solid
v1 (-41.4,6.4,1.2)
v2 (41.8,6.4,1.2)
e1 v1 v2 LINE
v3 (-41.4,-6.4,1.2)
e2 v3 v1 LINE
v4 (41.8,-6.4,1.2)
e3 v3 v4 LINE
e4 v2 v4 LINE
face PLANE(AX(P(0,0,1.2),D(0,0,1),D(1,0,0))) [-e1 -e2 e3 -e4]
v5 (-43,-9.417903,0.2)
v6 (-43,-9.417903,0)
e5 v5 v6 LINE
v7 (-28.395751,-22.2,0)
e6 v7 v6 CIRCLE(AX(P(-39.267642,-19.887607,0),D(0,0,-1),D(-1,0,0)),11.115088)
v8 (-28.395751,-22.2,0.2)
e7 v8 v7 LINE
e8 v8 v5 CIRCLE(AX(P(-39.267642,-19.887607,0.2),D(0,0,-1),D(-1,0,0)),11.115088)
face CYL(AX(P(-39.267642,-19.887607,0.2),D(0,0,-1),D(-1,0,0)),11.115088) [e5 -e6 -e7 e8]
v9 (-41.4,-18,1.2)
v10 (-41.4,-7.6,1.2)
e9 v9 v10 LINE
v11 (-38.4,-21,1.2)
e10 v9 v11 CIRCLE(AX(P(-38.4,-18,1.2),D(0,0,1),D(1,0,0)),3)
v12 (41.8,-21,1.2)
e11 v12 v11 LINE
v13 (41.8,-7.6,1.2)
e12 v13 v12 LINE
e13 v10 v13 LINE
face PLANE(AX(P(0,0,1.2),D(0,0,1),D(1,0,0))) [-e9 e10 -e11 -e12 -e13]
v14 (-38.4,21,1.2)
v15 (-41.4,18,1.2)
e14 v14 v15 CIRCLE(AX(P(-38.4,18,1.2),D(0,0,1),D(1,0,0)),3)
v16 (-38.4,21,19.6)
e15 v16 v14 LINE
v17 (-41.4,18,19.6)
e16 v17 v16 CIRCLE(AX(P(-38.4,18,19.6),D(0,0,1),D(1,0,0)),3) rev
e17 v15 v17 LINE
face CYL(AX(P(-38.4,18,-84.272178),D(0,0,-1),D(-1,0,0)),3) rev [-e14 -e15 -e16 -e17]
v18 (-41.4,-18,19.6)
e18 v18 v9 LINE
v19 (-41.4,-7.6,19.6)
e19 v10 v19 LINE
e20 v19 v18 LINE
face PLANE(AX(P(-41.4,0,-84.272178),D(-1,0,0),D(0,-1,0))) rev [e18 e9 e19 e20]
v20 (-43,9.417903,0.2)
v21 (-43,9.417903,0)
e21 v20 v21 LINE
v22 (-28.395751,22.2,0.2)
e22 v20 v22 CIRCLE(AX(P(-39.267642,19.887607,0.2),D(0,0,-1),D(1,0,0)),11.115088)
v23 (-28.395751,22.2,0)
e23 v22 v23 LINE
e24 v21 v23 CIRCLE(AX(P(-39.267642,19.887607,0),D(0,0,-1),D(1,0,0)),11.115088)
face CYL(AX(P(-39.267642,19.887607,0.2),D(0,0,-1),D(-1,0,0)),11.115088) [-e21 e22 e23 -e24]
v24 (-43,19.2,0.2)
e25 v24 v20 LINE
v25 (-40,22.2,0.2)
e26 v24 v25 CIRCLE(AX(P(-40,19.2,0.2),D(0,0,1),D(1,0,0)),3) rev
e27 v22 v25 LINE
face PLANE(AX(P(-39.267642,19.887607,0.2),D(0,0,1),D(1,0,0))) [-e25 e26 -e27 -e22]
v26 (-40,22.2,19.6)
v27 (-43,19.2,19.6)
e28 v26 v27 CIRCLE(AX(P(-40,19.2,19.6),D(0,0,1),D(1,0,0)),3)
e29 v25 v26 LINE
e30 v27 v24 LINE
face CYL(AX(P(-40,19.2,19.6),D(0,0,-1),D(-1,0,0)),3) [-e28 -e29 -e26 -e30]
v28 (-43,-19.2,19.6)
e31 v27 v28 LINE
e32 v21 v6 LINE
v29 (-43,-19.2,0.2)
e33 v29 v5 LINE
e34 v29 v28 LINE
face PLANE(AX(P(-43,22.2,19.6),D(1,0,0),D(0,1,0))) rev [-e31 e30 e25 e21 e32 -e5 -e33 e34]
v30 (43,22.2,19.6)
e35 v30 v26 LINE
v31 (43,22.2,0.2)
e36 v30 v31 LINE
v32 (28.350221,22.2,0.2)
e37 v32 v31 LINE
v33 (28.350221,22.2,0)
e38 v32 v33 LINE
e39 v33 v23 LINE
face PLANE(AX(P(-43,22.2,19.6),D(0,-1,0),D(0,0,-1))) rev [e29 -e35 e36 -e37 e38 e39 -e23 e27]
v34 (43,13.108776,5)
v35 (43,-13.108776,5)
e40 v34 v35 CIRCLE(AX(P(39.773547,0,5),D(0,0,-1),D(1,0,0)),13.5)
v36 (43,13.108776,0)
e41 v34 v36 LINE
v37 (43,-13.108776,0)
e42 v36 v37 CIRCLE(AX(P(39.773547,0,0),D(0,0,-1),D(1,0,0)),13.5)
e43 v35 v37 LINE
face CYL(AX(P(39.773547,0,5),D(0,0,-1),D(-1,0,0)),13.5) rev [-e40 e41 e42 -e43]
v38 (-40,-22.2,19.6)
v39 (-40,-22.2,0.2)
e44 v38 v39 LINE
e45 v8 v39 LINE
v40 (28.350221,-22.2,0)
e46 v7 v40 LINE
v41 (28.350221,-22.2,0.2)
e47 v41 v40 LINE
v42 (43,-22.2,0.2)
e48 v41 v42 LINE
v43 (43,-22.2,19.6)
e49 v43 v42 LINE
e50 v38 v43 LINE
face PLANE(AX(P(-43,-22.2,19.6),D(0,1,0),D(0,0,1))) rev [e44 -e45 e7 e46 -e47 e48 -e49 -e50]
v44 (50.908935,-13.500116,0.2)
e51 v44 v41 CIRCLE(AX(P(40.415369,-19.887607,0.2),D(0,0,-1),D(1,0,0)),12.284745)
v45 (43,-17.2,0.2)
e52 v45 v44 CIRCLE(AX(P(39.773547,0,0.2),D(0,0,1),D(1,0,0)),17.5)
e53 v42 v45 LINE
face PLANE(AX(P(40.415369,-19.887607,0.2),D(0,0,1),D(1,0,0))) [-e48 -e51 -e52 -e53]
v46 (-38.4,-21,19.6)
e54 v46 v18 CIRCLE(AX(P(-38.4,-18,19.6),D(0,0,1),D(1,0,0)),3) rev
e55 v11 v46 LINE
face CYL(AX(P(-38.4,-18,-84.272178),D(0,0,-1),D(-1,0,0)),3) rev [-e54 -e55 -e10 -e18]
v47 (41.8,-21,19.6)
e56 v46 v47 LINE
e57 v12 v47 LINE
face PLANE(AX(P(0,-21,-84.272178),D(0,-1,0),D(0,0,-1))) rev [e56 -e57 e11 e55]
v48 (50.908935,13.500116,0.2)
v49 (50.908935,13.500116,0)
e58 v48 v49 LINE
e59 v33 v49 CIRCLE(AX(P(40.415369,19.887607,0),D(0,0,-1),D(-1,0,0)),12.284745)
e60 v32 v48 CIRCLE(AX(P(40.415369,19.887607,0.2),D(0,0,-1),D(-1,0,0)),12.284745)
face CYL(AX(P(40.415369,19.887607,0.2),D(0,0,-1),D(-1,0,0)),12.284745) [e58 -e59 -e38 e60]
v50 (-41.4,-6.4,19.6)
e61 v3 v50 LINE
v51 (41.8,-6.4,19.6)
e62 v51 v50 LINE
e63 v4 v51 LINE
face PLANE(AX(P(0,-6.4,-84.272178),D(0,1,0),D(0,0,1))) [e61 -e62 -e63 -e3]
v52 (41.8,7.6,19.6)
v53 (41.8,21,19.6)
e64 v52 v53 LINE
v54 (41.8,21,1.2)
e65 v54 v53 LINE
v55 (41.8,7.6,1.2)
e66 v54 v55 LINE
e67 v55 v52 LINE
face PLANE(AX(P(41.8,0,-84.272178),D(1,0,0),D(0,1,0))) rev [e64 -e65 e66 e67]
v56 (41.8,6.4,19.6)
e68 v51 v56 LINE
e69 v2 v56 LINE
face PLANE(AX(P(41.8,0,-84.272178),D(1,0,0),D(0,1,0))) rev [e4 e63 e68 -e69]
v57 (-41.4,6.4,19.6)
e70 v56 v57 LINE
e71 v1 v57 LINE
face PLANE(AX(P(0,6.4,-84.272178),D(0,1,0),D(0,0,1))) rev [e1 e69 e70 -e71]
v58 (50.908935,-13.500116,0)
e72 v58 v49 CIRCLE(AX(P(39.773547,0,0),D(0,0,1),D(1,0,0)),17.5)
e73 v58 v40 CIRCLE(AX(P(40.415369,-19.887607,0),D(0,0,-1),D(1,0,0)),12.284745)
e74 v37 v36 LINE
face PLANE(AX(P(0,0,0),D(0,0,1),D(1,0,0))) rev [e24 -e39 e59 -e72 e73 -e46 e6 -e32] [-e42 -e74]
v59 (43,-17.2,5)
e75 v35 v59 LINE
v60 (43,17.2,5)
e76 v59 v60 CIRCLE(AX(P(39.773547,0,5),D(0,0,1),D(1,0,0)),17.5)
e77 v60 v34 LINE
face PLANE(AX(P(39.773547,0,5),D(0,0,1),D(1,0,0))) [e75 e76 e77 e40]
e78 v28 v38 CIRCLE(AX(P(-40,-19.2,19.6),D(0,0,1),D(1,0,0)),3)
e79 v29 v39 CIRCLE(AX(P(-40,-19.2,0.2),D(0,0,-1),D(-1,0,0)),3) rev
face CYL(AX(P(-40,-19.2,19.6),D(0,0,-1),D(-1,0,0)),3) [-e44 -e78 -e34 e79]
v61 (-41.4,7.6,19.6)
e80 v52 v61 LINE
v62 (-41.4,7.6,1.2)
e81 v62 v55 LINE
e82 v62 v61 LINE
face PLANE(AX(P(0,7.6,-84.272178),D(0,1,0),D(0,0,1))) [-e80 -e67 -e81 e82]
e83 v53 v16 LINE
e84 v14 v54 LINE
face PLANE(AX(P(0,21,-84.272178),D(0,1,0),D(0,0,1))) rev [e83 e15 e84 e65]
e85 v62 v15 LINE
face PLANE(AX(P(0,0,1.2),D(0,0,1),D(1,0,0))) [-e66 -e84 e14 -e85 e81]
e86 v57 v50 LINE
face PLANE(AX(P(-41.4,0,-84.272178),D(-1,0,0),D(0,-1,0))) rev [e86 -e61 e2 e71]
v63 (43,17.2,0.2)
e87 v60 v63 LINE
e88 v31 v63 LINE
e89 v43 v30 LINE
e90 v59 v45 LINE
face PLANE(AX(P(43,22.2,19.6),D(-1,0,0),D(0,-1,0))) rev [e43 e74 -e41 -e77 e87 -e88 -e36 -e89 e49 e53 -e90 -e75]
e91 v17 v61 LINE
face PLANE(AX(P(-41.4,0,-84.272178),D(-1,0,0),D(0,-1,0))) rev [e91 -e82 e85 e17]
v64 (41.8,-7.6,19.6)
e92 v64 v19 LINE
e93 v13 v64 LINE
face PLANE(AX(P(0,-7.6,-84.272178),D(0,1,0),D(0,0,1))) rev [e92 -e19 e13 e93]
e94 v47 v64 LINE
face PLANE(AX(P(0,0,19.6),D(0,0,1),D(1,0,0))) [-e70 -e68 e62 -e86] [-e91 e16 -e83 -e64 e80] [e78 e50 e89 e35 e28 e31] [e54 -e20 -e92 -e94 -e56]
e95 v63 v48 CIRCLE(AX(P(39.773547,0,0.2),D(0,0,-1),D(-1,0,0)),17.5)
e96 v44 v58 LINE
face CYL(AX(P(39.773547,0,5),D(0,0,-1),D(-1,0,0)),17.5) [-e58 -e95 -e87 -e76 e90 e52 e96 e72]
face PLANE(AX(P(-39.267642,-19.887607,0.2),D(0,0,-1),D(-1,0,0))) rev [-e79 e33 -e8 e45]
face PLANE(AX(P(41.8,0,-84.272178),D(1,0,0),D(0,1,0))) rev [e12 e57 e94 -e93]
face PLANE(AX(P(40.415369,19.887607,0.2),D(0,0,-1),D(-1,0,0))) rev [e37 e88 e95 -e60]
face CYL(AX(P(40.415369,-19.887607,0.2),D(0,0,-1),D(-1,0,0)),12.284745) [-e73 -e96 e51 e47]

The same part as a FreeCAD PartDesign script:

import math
import FreeCAD as App
import Part
import Sketcher
from FreeCAD import Vector


def edges_at(feature, points):
    """Names of the edges that pass closest to the given points."""
    edges = feature.Shape.Edges
    near = lambda p: min(range(len(edges)), key=lambda i: edges[i].distToShape(Part.Vertex(*p))[0])
    return sorted({f"Edge{near(p) + 1}" for p in points})


def add_polygon(sketch, points):
    """Adds a closed chain of lines whose ends are joined by coincident constraints."""
    first, n = sketch.GeometryCount, len(points)
    for a, b in zip(points, points[1:] + points[:1]):
        sketch.addGeometry(Part.LineSegment(App.Vector(*a, 0), App.Vector(*b, 0)), False)
    for i in range(n):
        sketch.addConstraint(Sketcher.Constraint("Coincident", first + i, 2, first + (i + 1) % n, 1))

doc = App.newDocument("Part")
body = doc.addObject("PartDesign::Body", "Body")

# Sketch on XY plane
sketch1 = body.newObject("Sketcher::SketchObject", "Sketch")
sketch1.AttachmentSupport = (doc.getObject("XY_Plane"), [""])
sketch1.MapMode = "FlatFace"
add_polygon(sketch1, [(-43, 22), (-43, -22), (43, -22), (43, 22)])  # lines 0-3
sketch1.addConstraint(Sketcher.Constraint("Vertical", 0))
sketch1.addConstraint(Sketcher.Constraint("Horizontal", 1))
sketch1.addConstraint(Sketcher.Constraint("Vertical", 2))
sketch1.addConstraint(Sketcher.Constraint("Horizontal", 3))
sketch1.addConstraint(Sketcher.Constraint("Symmetric", 0, 2, 2, 2, -1, 1))
sketch1.addConstraint(Sketcher.Constraint("DistanceX", 1, 1, 1, 2, 86.0))
sketch1.addConstraint(Sketcher.Constraint("DistanceY", 0, 2, 0, 1, 44.4))
pad1 = body.newObject("PartDesign::Pad", "Pad")
pad1.Profile = sketch1
pad1.Length = 19.6

# Sketch on XY plane
sketch2 = body.newObject("Sketcher::SketchObject", "Sketch001")
sketch2.AttachmentSupport = (doc.getObject("XY_Plane"), [""])
sketch2.MapMode = "FlatFace"
sketch2.addGeometry(Part.LineSegment(Vector(43, 17.2, 0), Vector(43, 13.1, 0)), False)
sketch2.addGeometry(Part.ArcOfCircle(Part.Circle(Vector(39.8, 0, 0), Vector(0, 0, 1), 13.5), math.radians(-76), math.radians(76)), False)
sketch2.addGeometry(Part.LineSegment(Vector(43, -13.1, 0), Vector(43, -17.2, 0)), False)
sketch2.addGeometry(Part.ArcOfCircle(Part.Circle(Vector(39.8, 0, 0), Vector(0, 0, 1), 17.5), math.radians(-79), math.radians(79)), False)
sketch2.addConstraint(Sketcher.Constraint("Coincident", 0, 2, 1, 2))
sketch2.addConstraint(Sketcher.Constraint("Coincident", 1, 1, 2, 1))
sketch2.addConstraint(Sketcher.Constraint("Coincident", 2, 2, 3, 1))
sketch2.addConstraint(Sketcher.Constraint("Coincident", 3, 2, 0, 1))
sketch2.addConstraint(Sketcher.Constraint("Vertical", 0))
sketch2.addConstraint(Sketcher.Constraint("Vertical", 2))
sketch2.addConstraint(Sketcher.Constraint("Coincident", 3, 3, 1, 3))
sketch2.addConstraint(Sketcher.Constraint("Symmetric", 0, 2, 1, 1, -1))
sketch2.addConstraint(Sketcher.Constraint("Radius", 1, 13.5))
sketch2.addConstraint(Sketcher.Constraint("Radius", 3, 17.5))
sketch2.addConstraint(Sketcher.Constraint("DistanceX", -1, 1, 0, 2, 43.0))
sketch2.addConstraint(Sketcher.Constraint("DistanceY", 2, 2, -1, 1, 17.2))
pad2 = body.newObject("PartDesign::Pad", "Pad001")
pad2.Profile = sketch2
pad2.Length = 5

# Sketch on XY plane
sketch3 = body.newObject("Sketcher::SketchObject", "Sketch002")
sketch3.AttachmentSupport = (doc.getObject("XY_Plane"), [""])
sketch3.MapMode = "FlatFace"
sketch3.AttachmentOffset = App.Placement(Vector(0, 0, 19.6), App.Rotation())
add_polygon(sketch3, [(-41, 21), (-41, 8), (42, 8), (42, 21)])  # lines 0-3
add_polygon(sketch3, [(-41, 6), (-41, -6), (42, -6), (42, 6)])  # lines 4-7
add_polygon(sketch3, [(-41, -8), (-41, -21), (42, -21), (42, -8)])  # lines 8-11
sketch3.addConstraint(Sketcher.Constraint("Vertical", 0))
sketch3.addConstraint(Sketcher.Constraint("Horizontal", 1))
sketch3.addConstraint(Sketcher.Constraint("Vertical", 2))
sketch3.addConstraint(Sketcher.Constraint("Horizontal", 3))
sketch3.addConstraint(Sketcher.Constraint("Vertical", 4))
sketch3.addConstraint(Sketcher.Constraint("Horizontal", 5))
sketch3.addConstraint(Sketcher.Constraint("Vertical", 6))
sketch3.addConstraint(Sketcher.Constraint("Horizontal", 7))
sketch3.addConstraint(Sketcher.Constraint("Vertical", 8))
sketch3.addConstraint(Sketcher.Constraint("Horizontal", 9))
sketch3.addConstraint(Sketcher.Constraint("Vertical", 10))
sketch3.addConstraint(Sketcher.Constraint("Horizontal", 11))
sketch3.addConstraint(Sketcher.Constraint("Symmetric", 3, 2, 8, 2, -1))
sketch3.addConstraint(Sketcher.Constraint("Symmetric", 1, 2, 10, 2, -1))
sketch3.addConstraint(Sketcher.Constraint("Vertical", 3, 2, 4, 2))
sketch3.addConstraint(Sketcher.Constraint("Vertical", 2, 2, 5, 2))
sketch3.addConstraint(Sketcher.Constraint("DistanceX", 1, 1, 1, 2, 83.2))
sketch3.addConstraint(Sketcher.Constraint("DistanceY", 0, 2, 0, 1, 13.4))
sketch3.addConstraint(Sketcher.Constraint("DistanceY", 4, 2, 4, 1, 12.8))
sketch3.addConstraint(Sketcher.Constraint("DistanceY", -1, 1, 2, 2, 21.0))
sketch3.addConstraint(Sketcher.Constraint("DistanceY", 4, 2, 0, 2, 14.0))
sketch3.addConstraint(Sketcher.Constraint("DistanceX", 0, 2, -1, 1, 41.4))
pocket1 = body.newObject("PartDesign::Pocket", "Pocket")
pocket1.Profile = sketch3
pocket1.Length = 18.4
doc.recompute()

fillet = body.newObject("PartDesign::Fillet", "Fillet")
fillet.Base = (pocket1, edges_at(pocket1, [
    (-41.4, 21, 10.4),
    (-41.4, -21, 10.4),
    (-43, -22.2, 9.8),
    (-43, 22.2, 9.8),
]))
fillet.Radius = 3

# Sketch on XY plane
sketch4 = body.newObject("Sketcher::SketchObject", "Sketch003")
sketch4.AttachmentSupport = (doc.getObject("XY_Plane"), [""])
sketch4.MapMode = "FlatFace"
sketch4.addGeometry(Part.LineSegment(Vector(51, 14, 0), Vector(28, 22, 0)), False)
sketch4.addGeometry(Part.ArcOfCircle(Part.Circle(Vector(40, 20, 0), Vector(0, 0, 1), 12), math.radians(-31), math.radians(169)), False)
sketch4.addGeometry(Part.LineSegment(Vector(-28, 22, 0), Vector(-43, 9, 0)), False)
sketch4.addGeometry(Part.ArcOfCircle(Part.Circle(Vector(-39, 20, 0), Vector(0, 0, 1), 11), math.radians(12), math.radians(250)), False)
sketch4.addGeometry(Part.LineSegment(Vector(-43, -9, 0), Vector(-28, -22, 0)), False)
sketch4.addGeometry(Part.ArcOfCircle(Part.Circle(Vector(-39, -20, 0), Vector(0, 0, 1), 11), math.radians(110), math.radians(348)), False)
sketch4.addGeometry(Part.LineSegment(Vector(28, -22, 0), Vector(51, -14, 0)), False)
sketch4.addGeometry(Part.ArcOfCircle(Part.Circle(Vector(40, -20, 0), Vector(0, 0, 1), 12), math.radians(-169), math.radians(31)), False)
sketch4.addConstraint(Sketcher.Constraint("Coincident", 0, 1, 1, 1))
sketch4.addConstraint(Sketcher.Constraint("Coincident", 1, 2, 0, 2))
sketch4.addConstraint(Sketcher.Constraint("Coincident", 2, 1, 3, 1))
sketch4.addConstraint(Sketcher.Constraint("Coincident", 3, 2, 2, 2))
sketch4.addConstraint(Sketcher.Constraint("Coincident", 4, 1, 5, 1))
sketch4.addConstraint(Sketcher.Constraint("Coincident", 5, 2, 4, 2))
sketch4.addConstraint(Sketcher.Constraint("Coincident", 6, 1, 7, 1))
sketch4.addConstraint(Sketcher.Constraint("Coincident", 7, 2, 6, 2))
sketch4.addConstraint(Sketcher.Constraint("Equal", 3, 5))
sketch4.addConstraint(Sketcher.Constraint("Equal", 1, 7))
sketch4.addConstraint(Sketcher.Constraint("Symmetric", 3, 3, 5, 3, -1))
sketch4.addConstraint(Sketcher.Constraint("Symmetric", 1, 3, 7, 3, -1))
sketch4.addConstraint(Sketcher.Constraint("Horizontal", 1, 3, 3, 3))
sketch4.addConstraint(Sketcher.Constraint("Horizontal", 1, 2, 2, 1))
sketch4.addConstraint(Sketcher.Constraint("Horizontal", 5, 2, 6, 1))
sketch4.addConstraint(Sketcher.Constraint("Vertical", 3, 2, 4, 1))
sketch4.addConstraint(Sketcher.Constraint("Vertical", 2, 1, 5, 2))
sketch4.addConstraint(Sketcher.Constraint("Vertical", 0, 1, 7, 2))
sketch4.addConstraint(Sketcher.Constraint("DistanceX", 3, 2, -1, 1, 43.0))
sketch4.addConstraint(Sketcher.Constraint("DistanceY", -1, 1, 1, 2, 22.2))
sketch4.addConstraint(Sketcher.Constraint("Radius", 3, 11.115088))
sketch4.addConstraint(Sketcher.Constraint("Radius", 1, 12.284745))
sketch4.addConstraint(Sketcher.Constraint("DistanceX", -1, 1, 1, 3, 40.415369))
sketch4.addConstraint(Sketcher.Constraint("DistanceX", -1, 1, 1, 2, 28.350221))
sketch4.addConstraint(Sketcher.Constraint("DistanceX", 2, 1, -1, 1, 28.395751))
sketch4.addConstraint(Sketcher.Constraint("DistanceY", 0, 1, 1, 3, 6.38749))
pad3 = body.newObject("PartDesign::Pad", "Pad002")
pad3.Profile = sketch4
pad3.Length = 0.2

doc.recompute()
